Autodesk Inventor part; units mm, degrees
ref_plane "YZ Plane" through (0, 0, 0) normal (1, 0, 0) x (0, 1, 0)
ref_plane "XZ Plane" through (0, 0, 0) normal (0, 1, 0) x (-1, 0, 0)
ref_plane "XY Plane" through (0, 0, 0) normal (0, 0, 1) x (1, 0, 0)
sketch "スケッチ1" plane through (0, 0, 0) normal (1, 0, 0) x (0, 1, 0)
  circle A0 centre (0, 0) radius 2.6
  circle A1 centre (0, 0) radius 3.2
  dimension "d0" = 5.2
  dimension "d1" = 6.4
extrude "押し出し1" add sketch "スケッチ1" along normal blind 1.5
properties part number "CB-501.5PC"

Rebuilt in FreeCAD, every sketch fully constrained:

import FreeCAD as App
import Part
import Sketcher

V = App.Vector
Q = App.Units.Quantity

doc = App.newDocument("Part")
body = doc.addObject("PartDesign::Body", "Body")

# Sketch on YZ plane
sketch1 = body.newObject("Sketcher::SketchObject", "Sketch")
sketch1.AttachmentSupport = (doc.getObject("YZ_Plane"), [""])
sketch1.MapMode = "FlatFace"
sketch1.addGeometry(Part.Circle(V(0, 0, 0), V(0, 0, 1), 3.2), False)
sketch1.addGeometry(Part.Circle(V(0, 0, 0), V(0, 0, 1), 2.6), False)
sketch1.addConstraint(Sketcher.Constraint("Coincident", 0, 3, -1, 1))
sketch1.addConstraint(Sketcher.Constraint("Coincident", 1, 3, -1, 1))
sketch1.addConstraint(Sketcher.Constraint("Diameter", 0, Q("6.4 mm")))
sketch1.addConstraint(Sketcher.Constraint("Diameter", 1, Q("5.2 mm")))
pad1 = body.newObject("PartDesign::Pad", "Pad")
pad1.Profile = sketch1
pad1.Length = 1.5

doc.recompute()
